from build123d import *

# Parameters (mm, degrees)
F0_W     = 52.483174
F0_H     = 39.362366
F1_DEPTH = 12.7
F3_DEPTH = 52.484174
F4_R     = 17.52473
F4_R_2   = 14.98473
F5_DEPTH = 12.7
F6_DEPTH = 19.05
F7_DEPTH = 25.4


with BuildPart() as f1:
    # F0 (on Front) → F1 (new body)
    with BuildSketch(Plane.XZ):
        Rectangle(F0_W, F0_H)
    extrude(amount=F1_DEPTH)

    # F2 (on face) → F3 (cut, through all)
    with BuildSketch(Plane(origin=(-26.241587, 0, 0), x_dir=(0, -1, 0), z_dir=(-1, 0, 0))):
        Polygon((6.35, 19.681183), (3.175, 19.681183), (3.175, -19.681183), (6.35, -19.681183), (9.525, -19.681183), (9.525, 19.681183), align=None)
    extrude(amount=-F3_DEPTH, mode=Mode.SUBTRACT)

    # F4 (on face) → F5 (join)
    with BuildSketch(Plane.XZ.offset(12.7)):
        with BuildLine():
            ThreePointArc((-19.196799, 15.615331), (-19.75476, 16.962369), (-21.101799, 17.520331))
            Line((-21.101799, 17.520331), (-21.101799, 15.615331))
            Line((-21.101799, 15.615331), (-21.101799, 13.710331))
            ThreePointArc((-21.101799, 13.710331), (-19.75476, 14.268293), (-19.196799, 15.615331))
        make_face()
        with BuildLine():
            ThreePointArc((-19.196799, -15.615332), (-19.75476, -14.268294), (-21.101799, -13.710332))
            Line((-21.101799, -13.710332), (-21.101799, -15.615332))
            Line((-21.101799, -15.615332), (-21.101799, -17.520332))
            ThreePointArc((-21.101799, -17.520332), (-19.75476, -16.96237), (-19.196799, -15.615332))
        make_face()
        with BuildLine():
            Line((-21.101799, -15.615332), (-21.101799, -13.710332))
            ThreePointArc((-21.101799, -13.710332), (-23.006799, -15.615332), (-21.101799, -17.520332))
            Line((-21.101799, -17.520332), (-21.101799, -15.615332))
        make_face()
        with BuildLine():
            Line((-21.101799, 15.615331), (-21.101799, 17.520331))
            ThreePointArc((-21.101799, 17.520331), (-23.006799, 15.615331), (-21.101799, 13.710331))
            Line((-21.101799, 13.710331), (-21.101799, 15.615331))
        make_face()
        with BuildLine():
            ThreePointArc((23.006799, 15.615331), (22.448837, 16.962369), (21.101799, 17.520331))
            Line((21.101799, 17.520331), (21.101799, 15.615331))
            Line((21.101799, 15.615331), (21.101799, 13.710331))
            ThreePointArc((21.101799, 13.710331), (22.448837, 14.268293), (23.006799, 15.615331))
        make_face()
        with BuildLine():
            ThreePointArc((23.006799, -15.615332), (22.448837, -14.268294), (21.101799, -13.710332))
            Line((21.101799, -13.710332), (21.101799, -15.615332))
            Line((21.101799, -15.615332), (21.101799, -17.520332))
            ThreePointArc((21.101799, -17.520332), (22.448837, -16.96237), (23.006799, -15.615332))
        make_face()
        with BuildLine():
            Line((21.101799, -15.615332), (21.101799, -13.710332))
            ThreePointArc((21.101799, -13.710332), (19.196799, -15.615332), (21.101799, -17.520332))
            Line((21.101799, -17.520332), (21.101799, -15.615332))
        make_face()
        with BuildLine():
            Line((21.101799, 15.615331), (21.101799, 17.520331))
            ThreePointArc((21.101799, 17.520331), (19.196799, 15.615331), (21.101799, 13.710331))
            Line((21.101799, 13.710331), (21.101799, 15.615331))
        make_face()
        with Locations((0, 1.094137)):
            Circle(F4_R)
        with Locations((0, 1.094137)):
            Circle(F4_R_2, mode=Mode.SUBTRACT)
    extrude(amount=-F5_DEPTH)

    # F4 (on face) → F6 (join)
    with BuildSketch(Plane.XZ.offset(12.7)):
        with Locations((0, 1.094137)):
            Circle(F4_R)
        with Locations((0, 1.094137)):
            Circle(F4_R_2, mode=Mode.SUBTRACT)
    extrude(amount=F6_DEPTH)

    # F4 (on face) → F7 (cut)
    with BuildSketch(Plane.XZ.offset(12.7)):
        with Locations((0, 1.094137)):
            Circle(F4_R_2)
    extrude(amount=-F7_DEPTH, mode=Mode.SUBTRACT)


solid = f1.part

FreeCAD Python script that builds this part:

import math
import FreeCAD as App
import Part
import Sketcher

V = App.Vector
Q = App.Units.Quantity


def add_polygon(sketch, points):
    """Adds a closed chain of lines whose ends are joined by coincident constraints."""
    first, n = sketch.GeometryCount, len(points)
    for a, b in zip(points, points[1:] + points[:1]):
        sketch.addGeometry(Part.LineSegment(App.Vector(*a, 0), App.Vector(*b, 0)), False)
    for i in range(n):
        sketch.addConstraint(Sketcher.Constraint("Coincident", first + i, 2, first + (i + 1) % n, 1))

doc = App.newDocument("Part")
body = doc.addObject("PartDesign::Body", "Body")
body.AllowCompound = True

sketch1 = body.newObject("Sketcher::SketchObject", "Sketch")
sketch1.AttachmentSupport = (doc.getObject("XZ_Plane"), [""])
sketch1.MapMode = "FlatFace"
add_polygon(sketch1, [(-26.241587, 19.681183), (-26.241587, -19.681183), (26.241587, -19.681183), (26.241587, 19.681183)])
sketch1.addConstraint([
    Sketcher.Constraint("Vertical", 0),
    Sketcher.Constraint("Horizontal", 1),
    Sketcher.Constraint("Vertical", 2),
    Sketcher.Constraint("Horizontal", 3),
    Sketcher.Constraint("Symmetric", 0, 2, 2, 2, -1, 1),
    Sketcher.Constraint("DistanceX", 1, 1, 1, 2, 52.483174),
    Sketcher.Constraint("DistanceY", 0, 2, 0, 1, 39.362366),
])
pad1 = body.newObject("PartDesign::Pad", "Pad")
pad1.Profile = sketch1
pad1.Length = Q("0.5 in")

sketch2 = body.newObject("Sketcher::SketchObject", "Sketch001")
sketch2.AttachmentSupport = (doc.getObject("YZ_Plane"), [""])
sketch2.MapMode = "FlatFace"
sketch2.AttachmentOffset = App.Placement(V(0, 0, -26.241587), App.Rotation())
add_polygon(sketch2, [(-3.175, 19.681183), (-3.175, -19.681183), (-9.525, -19.681183), (-9.525, 19.681183)])
sketch2.addConstraint([
    Sketcher.Constraint("Vertical", 0),
    Sketcher.Constraint("Horizontal", 1),
    Sketcher.Constraint("Vertical", 2),
    Sketcher.Constraint("Horizontal", 3),
    Sketcher.Constraint("DistanceX", 1, 2, 1, 1, Q("0.25 in")),
    Sketcher.Constraint("DistanceX", 0, 2, -1, 1, Q("0.125 in")),
    Sketcher.Constraint("DistanceY", 0, 2, 0, 1, 39.362366),
    Sketcher.Constraint("DistanceY", 0, 2, -1, 1, 19.681183),
])
pocket1 = body.newObject("PartDesign::Pocket", "Pocket")
pocket1.Profile = sketch2
pocket1.Type = "ThroughAll"
pocket1.Reversed = True

sketch3 = body.newObject("Sketcher::SketchObject", "Sketch002")
sketch3.AttachmentSupport = (doc.getObject("XZ_Plane"), [""])
sketch3.MapMode = "FlatFace"
sketch3.AttachmentOffset = App.Placement(V(0, 0, 0.5 * 25.4), App.Rotation())
sketch3.addGeometry([
    Part.ArcOfCircle(Part.Circle(V(-21.101799, 15.615331, 0), V(0, 0, 1), 1.905), math.radians(-0.000008), math.radians(90.000008)),
    Part.ArcOfCircle(Part.Circle(V(-21.101799, 15.615331, 0), V(0, 0, 1), 1.905), math.radians(90), math.radians(270)),
    Part.ArcOfCircle(Part.Circle(V(-21.101799, 15.615331, 0), V(0, 0, 1), 1.905), math.radians(-90.000008), math.radians(0.000008)),
    Part.ArcOfCircle(Part.Circle(V(-21.101799, -15.615332, 0), V(0, 0, 1), 1.905), math.radians(-0.000008), math.radians(90.000008)),
    Part.ArcOfCircle(Part.Circle(V(-21.101799, -15.615332, 0), V(0, 0, 1), 1.905), math.radians(90), math.radians(270)),
    Part.ArcOfCircle(Part.Circle(V(-21.101799, -15.615332, 0), V(0, 0, 1), 1.905), math.radians(-90.000008), math.radians(0.000008)),
    Part.ArcOfCircle(Part.Circle(V(21.101798, 15.61533, 0), V(0, 0, 1), 1.905001), math.radians(0.000043), math.radians(89.999957)),
    Part.ArcOfCircle(Part.Circle(V(21.101799, 15.615331, 0), V(0, 0, 1), 1.905), math.radians(90), math.radians(270)),
    Part.ArcOfCircle(Part.Circle(V(21.101798, 15.615332, 0), V(0, 0, 1), 1.905001), math.radians(-89.999957), math.radians(-0.000043)),
    Part.ArcOfCircle(Part.Circle(V(21.101798, -15.615333, 0), V(0, 0, 1), 1.905001), math.radians(0.000043), math.radians(89.999957)),
    Part.ArcOfCircle(Part.Circle(V(21.101799, -15.615332, 0), V(0, 0, 1), 1.905), math.radians(90), math.radians(270)),
    Part.ArcOfCircle(Part.Circle(V(21.101798, -15.615331, 0), V(0, 0, 1), 1.905001), math.radians(-89.999957), math.radians(-0.000043)),
    Part.Circle(V(0, 1.094137, 0), V(0, 0, 1), 17.52473),
    Part.Circle(V(0, 1.094137, 0), V(0, 0, 1), 14.98473),
], False)
sketch3.addConstraint([
    Sketcher.Constraint("Tangent", 0, 2, 1, 1),
    Sketcher.Constraint("Tangent", 1, 2, 2, 1),
    Sketcher.Constraint("Tangent", 2, 2, 0, 1),
    Sketcher.Constraint("Tangent", 3, 2, 4, 1),
    Sketcher.Constraint("Tangent", 4, 2, 5, 1),
    Sketcher.Constraint("Tangent", 5, 2, 3, 1),
    Sketcher.Constraint("Tangent", 6, 2, 7, 1),
    Sketcher.Constraint("Tangent", 7, 2, 8, 1),
    Sketcher.Constraint("Tangent", 8, 2, 6, 1),
    Sketcher.Constraint("Tangent", 9, 2, 10, 1),
    Sketcher.Constraint("Tangent", 10, 2, 11, 1),
    Sketcher.Constraint("Tangent", 11, 2, 9, 1),
    Sketcher.Constraint("Coincident", 13, 3, 12, 3),
    Sketcher.Constraint("Equal", 2, 3),
    Sketcher.Constraint("Equal", 5, 6),
    Sketcher.Constraint("Equal", 8, 9),
    Sketcher.Constraint("Symmetric", 3, 3, 6, 3, -1, 1),
    Sketcher.Constraint("Symmetric", 0, 3, 9, 3, -1, 1),
    Sketcher.Constraint("Symmetric", 0, 3, 6, 3, -2),
    Sketcher.Constraint("PointOnObject", 12, 3, -2),
    Sketcher.Constraint("Horizontal", 8, 3, 2, 2),
    Sketcher.Constraint("Horizontal", 11, 3, 5, 2),
    Sketcher.Constraint("Horizontal", 2, 2, 8, 2),
    Sketcher.Constraint("Horizontal", 5, 2, 11, 2),
    Sketcher.Constraint("Vertical", 5, 3, 0, 2),
    Sketcher.Constraint("Vertical", 0, 2, 1, 2),
    Sketcher.Constraint("Vertical", 1, 2, 3, 2),
    Sketcher.Constraint("Vertical", 3, 2, 4, 2),
    Sketcher.Constraint("Vertical", 11, 3, 6, 2),
    Sketcher.Constraint("Vertical", 6, 2, 7, 2),
    Sketcher.Constraint("Vertical", 7, 2, 9, 2),
    Sketcher.Constraint("Vertical", 9, 2, 10, 2),
    Sketcher.Constraint("Radius", 0, Q("0.075 in")),
    Sketcher.Constraint("Diameter", 12, Q("1.3799 in")),
    Sketcher.Constraint("Diameter", 13, Q("1.1799 in")),
    Sketcher.Constraint("DistanceX", 0, 3, -1, 1, 21.101799),
    Sketcher.Constraint("DistanceY", -1, 1, 0, 3, 15.615331),
    Sketcher.Constraint("DistanceY", 3, 2, 12, 3, 14.804469),
])
pad2 = body.newObject("PartDesign::Pad", "Pad001")
pad2.Profile = sketch3
pad2.Length = Q("0.5 in")
pad2.Reversed = True

sketch4 = body.newObject("Sketcher::SketchObject", "Sketch003")
sketch4.AttachmentSupport = (doc.getObject("XZ_Plane"), [""])
sketch4.MapMode = "FlatFace"
sketch4.AttachmentOffset = App.Placement(V(0, 0, 0.5 * 25.4), App.Rotation())
sketch4.addGeometry([
    Part.Circle(V(0, 1.094137, 0), V(0, 0, 1), 17.52473),
    Part.Circle(V(0, 1.094137, 0), V(0, 0, 1), 14.98473),
], False)
sketch4.addConstraint([
    Sketcher.Constraint("Coincident", 1, 3, 0, 3),
    Sketcher.Constraint("PointOnObject", 0, 3, -2),
    Sketcher.Constraint("Diameter", 0, Q("1.3799 in")),
    Sketcher.Constraint("Diameter", 1, Q("1.1799 in")),
    Sketcher.Constraint("DistanceY", -1, 1, 0, 3, 1.094137),
])
pad3 = body.newObject("PartDesign::Pad", "Pad002")
pad3.Profile = sketch4
pad3.Length = Q("0.75 in")

sketch5 = body.newObject("Sketcher::SketchObject", "Sketch004")
sketch5.AttachmentSupport = (doc.getObject("XZ_Plane"), [""])
sketch5.MapMode = "FlatFace"
sketch5.AttachmentOffset = App.Placement(V(0, 0, 0.5 * 25.4), App.Rotation())
sketch5.addGeometry(Part.Circle(V(0, 1.094137, 0), V(0, 0, 1), 14.98473), False)
sketch5.addConstraint([
    Sketcher.Constraint("PointOnObject", 0, 3, -2),
    Sketcher.Constraint("Diameter", 0, Q("1.1799 in")),
    Sketcher.Constraint("DistanceY", -1, 1, 0, 3, 1.094137),
])
pocket2 = body.newObject("PartDesign::Pocket", "Pocket001")
pocket2.Profile = sketch5
pocket2.Length = Q("1 in")

doc.recompute()
